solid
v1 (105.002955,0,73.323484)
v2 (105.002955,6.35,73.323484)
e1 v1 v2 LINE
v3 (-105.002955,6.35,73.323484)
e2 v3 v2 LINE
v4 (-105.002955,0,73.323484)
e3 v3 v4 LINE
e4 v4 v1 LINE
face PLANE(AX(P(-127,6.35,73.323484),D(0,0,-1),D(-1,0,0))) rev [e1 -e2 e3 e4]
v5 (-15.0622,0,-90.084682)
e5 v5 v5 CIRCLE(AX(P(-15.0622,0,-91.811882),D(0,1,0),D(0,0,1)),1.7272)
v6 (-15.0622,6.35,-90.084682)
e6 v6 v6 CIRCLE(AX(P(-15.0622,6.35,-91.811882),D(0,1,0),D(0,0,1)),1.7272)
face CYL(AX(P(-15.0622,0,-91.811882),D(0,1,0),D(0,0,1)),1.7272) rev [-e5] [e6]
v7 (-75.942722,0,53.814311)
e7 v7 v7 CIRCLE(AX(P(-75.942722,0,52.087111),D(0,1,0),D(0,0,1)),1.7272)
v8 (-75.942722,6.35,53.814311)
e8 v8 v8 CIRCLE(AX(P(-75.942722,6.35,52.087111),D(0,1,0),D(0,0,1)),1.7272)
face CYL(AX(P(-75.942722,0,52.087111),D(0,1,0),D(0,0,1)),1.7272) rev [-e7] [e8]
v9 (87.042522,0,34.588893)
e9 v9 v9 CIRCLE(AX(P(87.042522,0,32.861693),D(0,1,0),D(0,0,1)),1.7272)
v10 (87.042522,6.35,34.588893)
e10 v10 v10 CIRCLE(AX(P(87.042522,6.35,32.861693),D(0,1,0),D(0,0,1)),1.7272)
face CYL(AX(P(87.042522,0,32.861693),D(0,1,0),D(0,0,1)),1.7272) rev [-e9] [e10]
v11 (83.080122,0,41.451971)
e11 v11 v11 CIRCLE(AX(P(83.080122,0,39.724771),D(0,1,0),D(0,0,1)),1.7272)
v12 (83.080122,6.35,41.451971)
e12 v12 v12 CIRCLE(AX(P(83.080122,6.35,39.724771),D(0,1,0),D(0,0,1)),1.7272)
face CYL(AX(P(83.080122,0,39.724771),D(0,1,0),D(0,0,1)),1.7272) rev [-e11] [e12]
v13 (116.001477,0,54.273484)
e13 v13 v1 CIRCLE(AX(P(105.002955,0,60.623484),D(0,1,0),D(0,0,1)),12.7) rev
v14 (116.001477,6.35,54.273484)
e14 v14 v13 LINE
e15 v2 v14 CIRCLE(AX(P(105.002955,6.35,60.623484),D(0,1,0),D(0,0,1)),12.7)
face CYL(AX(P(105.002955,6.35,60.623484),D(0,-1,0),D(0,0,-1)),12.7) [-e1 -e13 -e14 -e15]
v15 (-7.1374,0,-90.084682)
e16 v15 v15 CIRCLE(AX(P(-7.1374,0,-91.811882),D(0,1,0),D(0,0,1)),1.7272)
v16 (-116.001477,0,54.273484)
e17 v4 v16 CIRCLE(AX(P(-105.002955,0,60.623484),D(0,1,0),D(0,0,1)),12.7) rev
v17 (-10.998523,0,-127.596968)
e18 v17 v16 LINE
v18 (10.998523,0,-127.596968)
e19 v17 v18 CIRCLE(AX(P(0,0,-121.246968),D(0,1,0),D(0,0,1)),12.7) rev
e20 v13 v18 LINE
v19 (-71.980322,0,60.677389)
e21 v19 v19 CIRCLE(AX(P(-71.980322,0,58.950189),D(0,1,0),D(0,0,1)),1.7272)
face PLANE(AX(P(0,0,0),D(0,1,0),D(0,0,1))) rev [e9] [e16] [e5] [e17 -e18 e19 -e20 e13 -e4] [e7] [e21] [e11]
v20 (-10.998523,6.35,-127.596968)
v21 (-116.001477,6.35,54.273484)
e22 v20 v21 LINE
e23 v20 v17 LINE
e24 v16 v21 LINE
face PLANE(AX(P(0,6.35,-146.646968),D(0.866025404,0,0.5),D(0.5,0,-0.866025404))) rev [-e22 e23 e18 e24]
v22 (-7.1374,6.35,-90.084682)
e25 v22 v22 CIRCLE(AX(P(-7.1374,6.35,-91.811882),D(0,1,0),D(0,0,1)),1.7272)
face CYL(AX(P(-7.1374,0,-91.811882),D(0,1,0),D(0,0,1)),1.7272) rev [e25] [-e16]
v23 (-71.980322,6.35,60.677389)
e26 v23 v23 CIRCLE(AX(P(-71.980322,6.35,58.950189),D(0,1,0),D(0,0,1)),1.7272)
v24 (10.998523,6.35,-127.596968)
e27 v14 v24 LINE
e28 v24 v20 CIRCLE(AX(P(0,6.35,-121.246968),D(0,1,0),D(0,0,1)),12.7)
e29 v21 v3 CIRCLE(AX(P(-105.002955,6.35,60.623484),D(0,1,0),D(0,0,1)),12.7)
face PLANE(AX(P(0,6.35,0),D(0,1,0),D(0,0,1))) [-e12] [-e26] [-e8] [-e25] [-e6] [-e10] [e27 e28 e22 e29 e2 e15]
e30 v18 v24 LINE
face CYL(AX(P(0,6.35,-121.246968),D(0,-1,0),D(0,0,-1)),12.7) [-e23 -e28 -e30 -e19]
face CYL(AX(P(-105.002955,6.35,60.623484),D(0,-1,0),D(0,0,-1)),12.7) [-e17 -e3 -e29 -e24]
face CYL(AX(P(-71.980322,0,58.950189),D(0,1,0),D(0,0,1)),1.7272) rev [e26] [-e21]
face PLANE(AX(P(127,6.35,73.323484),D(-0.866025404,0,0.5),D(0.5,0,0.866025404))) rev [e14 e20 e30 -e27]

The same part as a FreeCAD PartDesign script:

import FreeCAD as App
import Part
import Sketcher

V = App.Vector
Q = App.Units.Quantity


def edges_at(feature, points):
    """Names of the edges that pass closest to the given points."""
    edges = feature.Shape.Edges
    near = lambda p: min(range(len(edges)), key=lambda i: edges[i].distToShape(Part.Vertex(*p))[0])
    return sorted({f"Edge{near(p) + 1}" for p in points})


def add_polygon(sketch, points):
    """Adds a closed chain of lines whose ends are joined by coincident constraints."""
    first, n = sketch.GeometryCount, len(points)
    for a, b in zip(points, points[1:] + points[:1]):
        sketch.addGeometry(Part.LineSegment(App.Vector(*a, 0), App.Vector(*b, 0)), False)
    for i in range(n):
        sketch.addConstraint(Sketcher.Constraint("Coincident", first + i, 2, first + (i + 1) % n, 1))

doc = App.newDocument("Part")
params = doc.addObject("Spreadsheet::Sheet", "Params")
for row, (alias, value) in enumerate([
    ("sketch1_width", "10 in"),
    ("sketch1_length", "10 in"),
    ("pad1_length", "0.25 in"),
    ("sketch2_diameter", "0.136 in"),
    ("fillet_radius", "0.5 in"),
], start=1):
    params.set(f"A{row}", alias)
    params.set(f"B{row}", "=" + value)
    params.setAlias(f"B{row}", alias)

body = doc.addObject("PartDesign::Body", "Body")

# Sketch on XZ plane
sketch1 = body.newObject("Sketcher::SketchObject", "Sketch")
sketch1.AttachmentSupport = (doc.getObject("XZ_Plane"), [""])
sketch1.MapMode = "FlatFace"
add_polygon(sketch1, [(0, -147), (-127, 73), (127, 73)])  # lines 0-2
sketch1.addConstraint(Sketcher.Constraint("Horizontal", 1))
sketch1.addConstraint(Sketcher.Constraint("PointOnObject", 2, 2, -2))
sketch1.addConstraint(Sketcher.Constraint("Equal", 0, 2))
sketch1.addConstraint(Sketcher.Constraint("DistanceX", 1, 1, 1, 2, Q("10 in")))
sketch1.addConstraint(Sketcher.Constraint("Distance", 0, Q("10 in")))
sketch1.addConstraint(Sketcher.Constraint("DistanceY", 2, 2, -1, 1, Q("146.646968 mm")))
sketch1.setExpression("Constraints[6]", "Params.sketch1_width")
sketch1.setExpression("Constraints[7]", "Params.sketch1_length")
pad1 = body.newObject("PartDesign::Pad", "Pad")
pad1.Profile = sketch1
pad1.setExpression("Length", "Params.pad1_length")
pad1.Reversed = True

# Sketch on XZ plane
sketch2 = body.newObject("Sketcher::SketchObject", "Sketch001")
sketch2.AttachmentSupport = (doc.getObject("XZ_Plane"), [""])
sketch2.MapMode = "FlatFace"
sketch2.AttachmentOffset = App.Placement(V(0, 0, -0.25 * 25.4), App.Rotation())
sketch2.addGeometry(Part.Circle(V(83.1, 39.7, 0), V(0, 0, 1), 1.7), False)
sketch2.addGeometry(Part.Circle(V(87, 32.9, 0), V(0, 0, 1), 1.7), False)
sketch2.addGeometry(Part.Circle(V(-75.9, 52.1, 0), V(0, 0, 1), 1.7), False)
sketch2.addGeometry(Part.Circle(V(-72, 59, 0), V(0, 0, 1), 1.7), False)
sketch2.addGeometry(Part.Circle(V(-7.1, -91.8, 0), V(0, 0, 1), 1.7), False)
sketch2.addGeometry(Part.Circle(V(-15.1, -91.8, 0), V(0, 0, 1), 1.7), False)
sketch2.addConstraint(Sketcher.Constraint("Equal", 0, 1))
sketch2.addConstraint(Sketcher.Constraint("Equal", 1, 2))
sketch2.addConstraint(Sketcher.Constraint("Equal", 2, 3))
sketch2.addConstraint(Sketcher.Constraint("Equal", 3, 4))
sketch2.addConstraint(Sketcher.Constraint("Equal", 4, 5))
sketch2.addConstraint(Sketcher.Constraint("Horizontal", 4, 3, 5, 3))
sketch2.addConstraint(Sketcher.Constraint("Diameter", 0, Q("0.136 in")))
sketch2.addConstraint(Sketcher.Constraint("DistanceX", 4, 3, -1, 1, Q("0.281 in")))
sketch2.addConstraint(Sketcher.Constraint("DistanceX", 5, 3, -1, 1, Q("0.593 in")))
sketch2.addConstraint(Sketcher.Constraint("DistanceX", 0, 3, 1, 3, Q("0.156 in")))
sketch2.addConstraint(Sketcher.Constraint("DistanceX", 2, 3, 3, 3, Q("0.156 in")))
sketch2.addConstraint(Sketcher.Constraint("DistanceY", 1, 3, 0, 3, Q("0.2701999 in")))
sketch2.addConstraint(Sketcher.Constraint("DistanceY", 2, 3, 3, 3, Q("0.2701999 in")))
sketch2.addConstraint(Sketcher.Constraint("DistanceX", -1, 1, 0, 3, Q("83.080122 mm")))
sketch2.addConstraint(Sketcher.Constraint("DistanceY", -1, 1, 0, 3, Q("39.724771 mm")))
sketch2.addConstraint(Sketcher.Constraint("DistanceX", 2, 3, -1, 1, Q("75.942722 mm")))
sketch2.addConstraint(Sketcher.Constraint("DistanceY", -1, 1, 2, 3, Q("52.087111 mm")))
sketch2.addConstraint(Sketcher.Constraint("DistanceY", 4, 3, -1, 1, Q("91.811882 mm")))
sketch2.setExpression("Constraints[6]", "Params.sketch2_diameter")
pocket1 = body.newObject("PartDesign::Pocket", "Pocket")
pocket1.Profile = sketch2
pocket1.Type = "ThroughAll"
pocket1.Reversed = True
doc.recompute()

fillet = body.newObject("PartDesign::Fillet", "Fillet")
fillet.Base = (pocket1, edges_at(pocket1, [(127, 3.175, 73.323), (-127, 3.175, 73.323), (0, 3.175, -146.647)]))
fillet.setExpression("Radius", "Params.fillet_radius")

doc.recompute()
